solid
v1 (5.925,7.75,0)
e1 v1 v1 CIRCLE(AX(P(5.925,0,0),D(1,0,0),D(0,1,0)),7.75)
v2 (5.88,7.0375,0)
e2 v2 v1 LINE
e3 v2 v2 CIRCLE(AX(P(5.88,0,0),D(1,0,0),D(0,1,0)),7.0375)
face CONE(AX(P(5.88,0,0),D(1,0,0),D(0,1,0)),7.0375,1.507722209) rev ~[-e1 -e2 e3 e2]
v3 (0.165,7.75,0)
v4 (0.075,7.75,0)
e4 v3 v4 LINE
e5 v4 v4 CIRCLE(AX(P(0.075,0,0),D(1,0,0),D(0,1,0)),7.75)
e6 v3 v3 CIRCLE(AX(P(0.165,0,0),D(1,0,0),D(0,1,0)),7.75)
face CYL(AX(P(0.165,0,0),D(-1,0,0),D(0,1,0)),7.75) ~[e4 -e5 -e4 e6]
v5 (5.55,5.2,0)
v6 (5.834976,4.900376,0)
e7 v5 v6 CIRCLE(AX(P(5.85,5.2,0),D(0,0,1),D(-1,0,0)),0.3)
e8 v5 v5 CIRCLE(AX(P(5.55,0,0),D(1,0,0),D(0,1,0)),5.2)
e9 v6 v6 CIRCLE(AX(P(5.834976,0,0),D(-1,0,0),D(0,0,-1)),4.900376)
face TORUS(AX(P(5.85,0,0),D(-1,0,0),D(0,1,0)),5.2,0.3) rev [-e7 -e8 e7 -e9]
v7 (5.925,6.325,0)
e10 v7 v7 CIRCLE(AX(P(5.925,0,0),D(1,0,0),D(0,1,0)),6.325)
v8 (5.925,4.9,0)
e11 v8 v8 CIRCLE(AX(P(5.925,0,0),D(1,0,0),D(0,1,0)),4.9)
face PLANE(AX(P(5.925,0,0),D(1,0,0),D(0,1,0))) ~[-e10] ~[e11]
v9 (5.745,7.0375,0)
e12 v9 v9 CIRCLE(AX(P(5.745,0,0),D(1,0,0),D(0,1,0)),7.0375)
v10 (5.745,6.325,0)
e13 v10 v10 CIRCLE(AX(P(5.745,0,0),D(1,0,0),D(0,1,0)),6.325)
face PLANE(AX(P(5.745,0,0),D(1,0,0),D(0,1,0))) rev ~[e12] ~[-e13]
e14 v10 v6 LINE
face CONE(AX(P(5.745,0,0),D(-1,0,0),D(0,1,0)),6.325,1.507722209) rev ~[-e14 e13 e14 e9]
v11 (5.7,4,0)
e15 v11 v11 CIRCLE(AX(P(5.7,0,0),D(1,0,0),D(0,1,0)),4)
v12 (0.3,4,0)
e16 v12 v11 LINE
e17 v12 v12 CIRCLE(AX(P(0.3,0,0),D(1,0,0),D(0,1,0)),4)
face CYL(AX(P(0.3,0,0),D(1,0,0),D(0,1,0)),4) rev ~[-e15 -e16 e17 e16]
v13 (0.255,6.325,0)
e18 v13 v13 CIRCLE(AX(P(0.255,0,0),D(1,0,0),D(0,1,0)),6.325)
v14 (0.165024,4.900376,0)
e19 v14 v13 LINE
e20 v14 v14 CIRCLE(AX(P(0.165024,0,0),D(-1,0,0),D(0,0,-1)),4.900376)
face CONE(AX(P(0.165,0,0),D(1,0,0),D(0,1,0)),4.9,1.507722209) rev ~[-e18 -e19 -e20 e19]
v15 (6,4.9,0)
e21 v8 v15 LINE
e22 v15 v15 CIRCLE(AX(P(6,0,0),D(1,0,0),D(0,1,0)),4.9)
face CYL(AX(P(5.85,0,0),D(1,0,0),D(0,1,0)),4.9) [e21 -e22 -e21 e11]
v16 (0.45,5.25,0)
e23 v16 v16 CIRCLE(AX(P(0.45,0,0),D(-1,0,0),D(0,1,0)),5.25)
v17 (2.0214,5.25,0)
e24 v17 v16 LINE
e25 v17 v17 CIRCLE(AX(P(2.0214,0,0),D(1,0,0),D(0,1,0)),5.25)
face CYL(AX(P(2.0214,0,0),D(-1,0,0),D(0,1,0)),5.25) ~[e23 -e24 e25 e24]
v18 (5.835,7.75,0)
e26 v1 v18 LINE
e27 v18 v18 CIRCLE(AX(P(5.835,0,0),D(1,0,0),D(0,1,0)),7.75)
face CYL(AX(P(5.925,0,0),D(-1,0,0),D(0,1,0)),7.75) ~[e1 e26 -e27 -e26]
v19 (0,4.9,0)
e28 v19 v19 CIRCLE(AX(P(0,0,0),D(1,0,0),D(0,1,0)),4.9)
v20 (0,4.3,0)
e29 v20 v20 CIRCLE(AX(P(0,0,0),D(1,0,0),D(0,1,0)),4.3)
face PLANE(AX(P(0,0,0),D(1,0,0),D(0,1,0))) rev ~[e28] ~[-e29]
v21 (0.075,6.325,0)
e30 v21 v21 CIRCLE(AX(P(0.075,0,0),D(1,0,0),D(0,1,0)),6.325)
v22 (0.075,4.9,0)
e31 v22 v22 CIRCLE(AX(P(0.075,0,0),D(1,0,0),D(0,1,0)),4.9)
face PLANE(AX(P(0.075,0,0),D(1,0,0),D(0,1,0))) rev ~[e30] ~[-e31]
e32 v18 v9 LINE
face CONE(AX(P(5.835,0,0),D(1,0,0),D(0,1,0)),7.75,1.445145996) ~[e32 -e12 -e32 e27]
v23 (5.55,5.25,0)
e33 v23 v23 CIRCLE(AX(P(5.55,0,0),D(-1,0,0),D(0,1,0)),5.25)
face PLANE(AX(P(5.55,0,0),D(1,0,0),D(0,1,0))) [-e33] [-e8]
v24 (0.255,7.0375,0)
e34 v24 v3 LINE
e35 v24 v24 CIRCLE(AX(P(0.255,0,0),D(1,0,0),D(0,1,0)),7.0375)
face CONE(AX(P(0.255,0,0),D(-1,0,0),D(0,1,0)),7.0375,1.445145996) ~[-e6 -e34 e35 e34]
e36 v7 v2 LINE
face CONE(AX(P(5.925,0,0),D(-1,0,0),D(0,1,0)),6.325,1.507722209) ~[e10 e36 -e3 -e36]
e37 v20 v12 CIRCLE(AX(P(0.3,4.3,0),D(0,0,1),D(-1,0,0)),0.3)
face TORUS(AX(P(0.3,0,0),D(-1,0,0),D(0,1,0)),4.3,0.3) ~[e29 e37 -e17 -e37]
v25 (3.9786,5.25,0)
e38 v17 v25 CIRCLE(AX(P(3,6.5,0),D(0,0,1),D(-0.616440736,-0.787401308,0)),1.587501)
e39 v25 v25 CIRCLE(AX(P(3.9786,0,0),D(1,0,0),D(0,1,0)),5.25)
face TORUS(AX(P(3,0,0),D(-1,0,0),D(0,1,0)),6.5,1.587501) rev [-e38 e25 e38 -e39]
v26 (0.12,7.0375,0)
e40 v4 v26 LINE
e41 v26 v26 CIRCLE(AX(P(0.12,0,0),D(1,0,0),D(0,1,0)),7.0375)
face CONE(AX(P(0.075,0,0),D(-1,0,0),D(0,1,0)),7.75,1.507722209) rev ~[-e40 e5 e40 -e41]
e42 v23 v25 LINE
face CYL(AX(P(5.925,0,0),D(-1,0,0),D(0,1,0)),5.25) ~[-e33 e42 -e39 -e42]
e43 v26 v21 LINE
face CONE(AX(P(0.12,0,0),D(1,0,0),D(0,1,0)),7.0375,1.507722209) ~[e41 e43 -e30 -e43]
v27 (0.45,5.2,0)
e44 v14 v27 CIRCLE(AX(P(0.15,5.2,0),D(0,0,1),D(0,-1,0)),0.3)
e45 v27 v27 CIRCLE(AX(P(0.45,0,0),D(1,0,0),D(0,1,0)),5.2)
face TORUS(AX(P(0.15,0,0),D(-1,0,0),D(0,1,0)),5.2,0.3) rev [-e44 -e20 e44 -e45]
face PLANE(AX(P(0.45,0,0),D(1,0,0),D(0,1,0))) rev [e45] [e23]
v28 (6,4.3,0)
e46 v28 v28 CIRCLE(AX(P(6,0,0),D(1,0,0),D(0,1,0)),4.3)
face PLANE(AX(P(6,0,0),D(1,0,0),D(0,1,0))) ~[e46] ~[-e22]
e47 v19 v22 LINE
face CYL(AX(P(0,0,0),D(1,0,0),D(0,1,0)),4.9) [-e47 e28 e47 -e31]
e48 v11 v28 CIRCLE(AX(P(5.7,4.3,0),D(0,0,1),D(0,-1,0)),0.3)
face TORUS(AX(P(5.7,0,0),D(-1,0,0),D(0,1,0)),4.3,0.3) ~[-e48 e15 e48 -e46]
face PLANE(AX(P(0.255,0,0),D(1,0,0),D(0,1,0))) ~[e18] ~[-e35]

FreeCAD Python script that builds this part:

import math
import FreeCAD as App
import Part
import Sketcher
from FreeCAD import Vector
Q = App.Units.Quantity

doc = App.newDocument("Part")
params = doc.addObject("Spreadsheet::Sheet", "Params")
for row, (alias, value) in enumerate([
    ("sketch1_radius", "0.3 mm"),
    ("sketch1_width", "5.4 mm"),
    ("revolution_angle", "360 deg"),
    ("sketch2_radius", "0.3 mm"),
    ("sketch2_width", "6 mm"),
    ("sketch2_width2", "5.1 mm"),
    ("sketch2_height", "6.5 mm"),
    ("sketch2_height2", "5.9 mm"),
    ("groove_angle", "360 deg"),
    ("sketch3_width", "0.09 mm"),
    ("revolution2_angle", "360 deg"),
    ("sketch4_width", "0.09 mm"),
    ("revolution3_angle", "360 deg"),
], start=1):
    params.set(f"A{row}", alias)
    params.set(f"B{row}", "=" + value)
    params.setAlias(f"B{row}", alias)

body = doc.addObject("PartDesign::Body", "Body")

# Sketch on XY plane
sketch1 = body.newObject("Sketcher::SketchObject", "Sketch")
sketch1.AttachmentSupport = (doc.getObject("XY_Plane"), [""])
sketch1.MapMode = "FlatFace"
sketch1.addGeometry([
    Part.ArcOfCircle(Part.Circle(Vector(0.07, 5.17, 0), Vector(0, 0, 1), 0.08), math.radians(90), math.radians(180)),  # 0
    Part.LineSegment(Vector(0, 5.17, 0), Vector(0, 4.3, 0)),  # 1
    Part.ArcOfCircle(Part.Circle(Vector(0.3, 4.3, 0), Vector(0, 0, 1), 0.3), math.radians(180), math.radians(270)),  # 2
    Part.LineSegment(Vector(0.3, 4, 0), Vector(5.7, 4, 0)),  # 3
    Part.ArcOfCircle(Part.Circle(Vector(5.7, 4.3, 0), Vector(0, 0, 1), 0.3), math.radians(-90), math.radians(0)),  # 4
    Part.LineSegment(Vector(6, 4.3, 0), Vector(6, 5.17, 0)),  # 5
    Part.ArcOfCircle(Part.Circle(Vector(5.92, 5.17, 0), Vector(0, 0, 1), 0.08), math.radians(0), math.radians(90)),  # 6
    Part.LineSegment(Vector(5.92, 5.25, 0), Vector(3.98, 5.25, 0)),  # 7
    Part.ArcOfCircle(Part.Circle(Vector(3, 6.5, 0), Vector(0, 0, 1), 1.59), math.radians(-128), math.radians(-52)),  # 8
    Part.LineSegment(Vector(2.02, 5.25, 0), Vector(0.07, 5.25, 0)),  # 9
], False)
sketch1.addConstraint([
    Sketcher.Constraint("Tangent", 0, 2, 1, 1),
    Sketcher.Constraint("Tangent", 1, 2, 2, 1),
    Sketcher.Constraint("Tangent", 2, 2, 3, 1),
    Sketcher.Constraint("Tangent", 3, 2, 4, 1),
    Sketcher.Constraint("Tangent", 4, 2, 5, 1),
    Sketcher.Constraint("Tangent", 5, 2, 6, 1),
    Sketcher.Constraint("Tangent", 6, 2, 7, 1),
    Sketcher.Constraint("Coincident", 7, 2, 8, 2),
    Sketcher.Constraint("Coincident", 8, 1, 9, 1),
    Sketcher.Constraint("Tangent", 9, 2, 0, 1),
    Sketcher.Constraint("Vertical", 1),
    Sketcher.Constraint("Horizontal", 3),
    Sketcher.Constraint("Vertical", 5),
    Sketcher.Constraint("Horizontal", 7),
    Sketcher.Constraint("Horizontal", 9),
    Sketcher.Constraint("Equal", 2, 4),
    Sketcher.Constraint("Equal", 0, 6),
    Sketcher.Constraint("PointOnObject", 0, 2, -2),
    Sketcher.Constraint("Horizontal", 0, 3, 6, 3),
    Sketcher.Constraint("Equal", 7, 9),
    Sketcher.Constraint("Radius", 2, Q("0.3 mm")),
    Sketcher.Constraint("DistanceX", 3, 1, 3, 2, Q("5.4 mm")),
    Sketcher.Constraint("DistanceY", -1, 1, 2, 2, Q("4 mm")),
    Sketcher.Constraint("Radius", 0, Q("0.075 mm")),
    Sketcher.Constraint("DistanceY", -1, 1, 8, 3, Q("6.5 mm")),
    Sketcher.Constraint("Radius", 8, Q("1.5875 mm")),
    Sketcher.Constraint("DistanceY", 1, 2, 1, 1, Q("0.875 mm")),
])
sketch1.setExpression("Constraints[20]", "Params.sketch1_radius")
sketch1.setExpression("Constraints[21]", "Params.sketch1_width")
revolution = body.newObject("PartDesign::Revolution", "Revolution")
revolution.Profile = sketch1
revolution.ReferenceAxis = (sketch1, ["H_Axis"])
revolution.setExpression("Angle", "Params.revolution_angle")

# Sketch on XY plane
sketch2 = body.newObject("Sketcher::SketchObject", "Sketch001")
sketch2.AttachmentSupport = (doc.getObject("XY_Plane"), [""])
sketch2.MapMode = "FlatFace"
sketch2.addGeometry([
    Part.LineSegment(Vector(6, 11.4, 0), Vector(0, 11.4, 0)),  # 0
    Part.LineSegment(Vector(0, 11.4, 0), Vector(0, 4.9, 0)),  # 1
    Part.LineSegment(Vector(0, 4.9, 0), Vector(0.15, 4.9, 0)),  # 2
    Part.ArcOfCircle(Part.Circle(Vector(0.15, 5.2, 0), Vector(0, 0, 1), 0.3), math.radians(-90), math.radians(0)),  # 3
    Part.LineSegment(Vector(0.45, 5.2, 0), Vector(0.45, 11.1, 0)),  # 4
    Part.LineSegment(Vector(0.45, 11.1, 0), Vector(5.55, 11.1, 0)),  # 5
    Part.LineSegment(Vector(5.55, 11.1, 0), Vector(5.55, 5.2, 0)),  # 6
    Part.ArcOfCircle(Part.Circle(Vector(5.85, 5.2, 0), Vector(0, 0, 1), 0.3), math.radians(180), math.radians(270)),  # 7
    Part.LineSegment(Vector(5.85, 4.9, 0), Vector(6, 4.9, 0)),  # 8
    Part.LineSegment(Vector(6, 4.9, 0), Vector(6, 11.4, 0)),  # 9
], False)
sketch2.addConstraint([
    Sketcher.Constraint("Coincident", 0, 2, 1, 1),
    Sketcher.Constraint("Coincident", 1, 2, 2, 1),
    Sketcher.Constraint("Tangent", 2, 2, 3, 1),
    Sketcher.Constraint("Tangent", 3, 2, 4, 1),
    Sketcher.Constraint("Coincident", 4, 2, 5, 1),
    Sketcher.Constraint("Coincident", 5, 2, 6, 1),
    Sketcher.Constraint("Tangent", 6, 2, 7, 1),
    Sketcher.Constraint("Tangent", 7, 2, 8, 1),
    Sketcher.Constraint("Coincident", 8, 2, 9, 1),
    Sketcher.Constraint("Coincident", 9, 2, 0, 1),
    Sketcher.Constraint("Horizontal", 0),
    Sketcher.Constraint("Vertical", 1),
    Sketcher.Constraint("Horizontal", 2),
    Sketcher.Constraint("Vertical", 4),
    Sketcher.Constraint("Horizontal", 5),
    Sketcher.Constraint("Vertical", 6),
    Sketcher.Constraint("Horizontal", 8),
    Sketcher.Constraint("Vertical", 9),
    Sketcher.Constraint("Equal", 3, 7),
    Sketcher.Constraint("PointOnObject", 0, 2, -2),
    Sketcher.Constraint("Horizontal", 3, 3, 7, 3),
    Sketcher.Constraint("Equal", 2, 8),
    Sketcher.Constraint("Radius", 3, Q("0.3 mm")),
    Sketcher.Constraint("DistanceX", 0, 2, 0, 1, Q("6 mm")),
    Sketcher.Constraint("DistanceX", 5, 1, 5, 2, Q("5.1 mm")),
    Sketcher.Constraint("DistanceY", 1, 2, 1, 1, Q("6.5 mm")),
    Sketcher.Constraint("DistanceY", 4, 1, 4, 2, Q("5.9 mm")),
    Sketcher.Constraint("DistanceY", -1, 1, 3, 3, Q("5.2 mm")),
])
sketch2.setExpression("Constraints[22]", "Params.sketch2_radius")
sketch2.setExpression("Constraints[23]", "Params.sketch2_width")
sketch2.setExpression("Constraints[24]", "Params.sketch2_width2")
sketch2.setExpression("Constraints[25]", "Params.sketch2_height")
sketch2.setExpression("Constraints[26]", "Params.sketch2_height2")
groove = body.newObject("PartDesign::Groove", "Groove")
groove.Profile = sketch2
groove.ReferenceAxis = (sketch2, ["H_Axis"])
groove.setExpression("Angle", "Params.groove_angle")

# Sketch on XY plane
sketch3 = body.newObject("Sketcher::SketchObject", "Sketch002")
sketch3.AttachmentSupport = (doc.getObject("XY_Plane"), [""])
sketch3.MapMode = "FlatFace"
sketch3.addGeometry([
    Part.LineSegment(Vector(0.17, 7.75, 0), Vector(0.07, 7.75, 0)),  # 0
    Part.LineSegment(Vector(0.07, 7.75, 0), Vector(0.12, 7.04, 0)),  # 1
    Part.LineSegment(Vector(0.12, 7.04, 0), Vector(0.07, 6.33, 0)),  # 2
    Part.LineSegment(Vector(0.07, 6.33, 0), Vector(0.07, 4.9, 0)),  # 3
    Part.LineSegment(Vector(0.07, 4.9, 0), Vector(0.17, 4.9, 0)),  # 4
    Part.LineSegment(Vector(0.17, 4.9, 0), Vector(0.26, 6.33, 0)),  # 5
    Part.LineSegment(Vector(0.26, 6.33, 0), Vector(0.26, 7.04, 0)),  # 6
    Part.LineSegment(Vector(0.26, 7.04, 0), Vector(0.17, 7.75, 0)),  # 7
], False)
sketch3.addConstraint([
    Sketcher.Constraint("Coincident", 0, 2, 1, 1),
    Sketcher.Constraint("Coincident", 1, 2, 2, 1),
    Sketcher.Constraint("Coincident", 2, 2, 3, 1),
    Sketcher.Constraint("Coincident", 3, 2, 4, 1),
    Sketcher.Constraint("Coincident", 4, 2, 5, 1),
    Sketcher.Constraint("Coincident", 5, 2, 6, 1),
    Sketcher.Constraint("Coincident", 6, 2, 7, 1),
    Sketcher.Constraint("Coincident", 7, 2, 0, 1),
    Sketcher.Constraint("Horizontal", 0),
    Sketcher.Constraint("Vertical", 3),
    Sketcher.Constraint("Horizontal", 4),
    Sketcher.Constraint("Vertical", 6),
    Sketcher.Constraint("Parallel", 2, 5),
    Sketcher.Constraint("Horizontal", 2, 2, 5, 2),
    Sketcher.Constraint("Horizontal", 1, 2, 6, 2),
    Sketcher.Constraint("Vertical", 0, 2, 2, 2),
    Sketcher.Constraint("Vertical", 4, 2, 7, 2),
    Sketcher.Constraint("Equal", 1, 2),
    Sketcher.Constraint("Angle", 7, Q("97.1992 deg")),
    Sketcher.Constraint("DistanceX", 0, 2, 0, 1, Q("0.09 mm")),
    Sketcher.Constraint("DistanceY", -1, 1, 3, 2, Q("4.9 mm")),
    Sketcher.Constraint("DistanceY", 3, 2, 3, 1, Q("1.425 mm")),
    Sketcher.Constraint("DistanceY", -1, 1, 0, 2, Q("7.75 mm")),
    Sketcher.Constraint("DistanceX", -1, 1, 1, 2, Q("0.12 mm")),
])
sketch3.setExpression("Constraints[19]", "Params.sketch3_width")
revolution2 = body.newObject("PartDesign::Revolution", "Revolution001")
revolution2.Profile = sketch3
revolution2.ReferenceAxis = (sketch3, ["H_Axis"])
revolution2.setExpression("Angle", "Params.revolution2_angle")

# Sketch on XY plane
sketch4 = body.newObject("Sketcher::SketchObject", "Sketch003")
sketch4.AttachmentSupport = (doc.getObject("XY_Plane"), [""])
sketch4.MapMode = "FlatFace"
sketch4.addGeometry([
    Part.LineSegment(Vector(5.83, 7.75, 0), Vector(5.75, 7.04, 0)),  # 0
    Part.LineSegment(Vector(5.75, 7.04, 0), Vector(5.75, 6.33, 0)),  # 1
    Part.LineSegment(Vector(5.75, 6.33, 0), Vector(5.83, 4.9, 0)),  # 2
    Part.LineSegment(Vector(5.83, 4.9, 0), Vector(5.92, 4.9, 0)),  # 3
    Part.LineSegment(Vector(5.92, 4.9, 0), Vector(5.92, 6.33, 0)),  # 4
    Part.LineSegment(Vector(5.92, 6.33, 0), Vector(5.88, 7.04, 0)),  # 5
    Part.LineSegment(Vector(5.88, 7.04, 0), Vector(5.92, 7.75, 0)),  # 6
    Part.LineSegment(Vector(5.92, 7.75, 0), Vector(5.83, 7.75, 0)),  # 7
], False)
sketch4.addConstraint([
    Sketcher.Constraint("Coincident", 0, 2, 1, 1),
    Sketcher.Constraint("Coincident", 1, 2, 2, 1),
    Sketcher.Constraint("Coincident", 2, 2, 3, 1),
    Sketcher.Constraint("Coincident", 3, 2, 4, 1),
    Sketcher.Constraint("Coincident", 4, 2, 5, 1),
    Sketcher.Constraint("Coincident", 5, 2, 6, 1),
    Sketcher.Constraint("Coincident", 6, 2, 7, 1),
    Sketcher.Constraint("Coincident", 7, 2, 0, 1),
    Sketcher.Constraint("Vertical", 1),
    Sketcher.Constraint("Horizontal", 3),
    Sketcher.Constraint("Vertical", 4),
    Sketcher.Constraint("Horizontal", 7),
    Sketcher.Constraint("Parallel", 2, 5),
    Sketcher.Constraint("Horizontal", 1, 2, 4, 2),
    Sketcher.Constraint("Horizontal", 0, 2, 5, 2),
    Sketcher.Constraint("Vertical", 4, 2, 6, 2),
    Sketcher.Constraint("Vertical", 2, 2, 7, 2),
    Sketcher.Constraint("Equal", 5, 6),
    Sketcher.Constraint("Angle", 0, Q("-97.1992 deg")),
    Sketcher.Constraint("DistanceX", 3, 1, 3, 2, Q("0.09 mm")),
    Sketcher.Constraint("DistanceY", -1, 1, 2, 2, Q("4.9 mm")),
    Sketcher.Constraint("DistanceY", 4, 1, 4, 2, Q("1.425 mm")),
    Sketcher.Constraint("DistanceX", -1, 1, 5, 2, Q("5.88 mm")),
    Sketcher.Constraint("DistanceY", -1, 1, 6, 2, Q("7.75 mm")),
])
sketch4.setExpression("Constraints[19]", "Params.sketch4_width")
revolution3 = body.newObject("PartDesign::Revolution", "Revolution002")
revolution3.Profile = sketch4
revolution3.ReferenceAxis = (sketch4, ["H_Axis"])
revolution3.setExpression("Angle", "Params.revolution3_angle")

doc.recompute()
